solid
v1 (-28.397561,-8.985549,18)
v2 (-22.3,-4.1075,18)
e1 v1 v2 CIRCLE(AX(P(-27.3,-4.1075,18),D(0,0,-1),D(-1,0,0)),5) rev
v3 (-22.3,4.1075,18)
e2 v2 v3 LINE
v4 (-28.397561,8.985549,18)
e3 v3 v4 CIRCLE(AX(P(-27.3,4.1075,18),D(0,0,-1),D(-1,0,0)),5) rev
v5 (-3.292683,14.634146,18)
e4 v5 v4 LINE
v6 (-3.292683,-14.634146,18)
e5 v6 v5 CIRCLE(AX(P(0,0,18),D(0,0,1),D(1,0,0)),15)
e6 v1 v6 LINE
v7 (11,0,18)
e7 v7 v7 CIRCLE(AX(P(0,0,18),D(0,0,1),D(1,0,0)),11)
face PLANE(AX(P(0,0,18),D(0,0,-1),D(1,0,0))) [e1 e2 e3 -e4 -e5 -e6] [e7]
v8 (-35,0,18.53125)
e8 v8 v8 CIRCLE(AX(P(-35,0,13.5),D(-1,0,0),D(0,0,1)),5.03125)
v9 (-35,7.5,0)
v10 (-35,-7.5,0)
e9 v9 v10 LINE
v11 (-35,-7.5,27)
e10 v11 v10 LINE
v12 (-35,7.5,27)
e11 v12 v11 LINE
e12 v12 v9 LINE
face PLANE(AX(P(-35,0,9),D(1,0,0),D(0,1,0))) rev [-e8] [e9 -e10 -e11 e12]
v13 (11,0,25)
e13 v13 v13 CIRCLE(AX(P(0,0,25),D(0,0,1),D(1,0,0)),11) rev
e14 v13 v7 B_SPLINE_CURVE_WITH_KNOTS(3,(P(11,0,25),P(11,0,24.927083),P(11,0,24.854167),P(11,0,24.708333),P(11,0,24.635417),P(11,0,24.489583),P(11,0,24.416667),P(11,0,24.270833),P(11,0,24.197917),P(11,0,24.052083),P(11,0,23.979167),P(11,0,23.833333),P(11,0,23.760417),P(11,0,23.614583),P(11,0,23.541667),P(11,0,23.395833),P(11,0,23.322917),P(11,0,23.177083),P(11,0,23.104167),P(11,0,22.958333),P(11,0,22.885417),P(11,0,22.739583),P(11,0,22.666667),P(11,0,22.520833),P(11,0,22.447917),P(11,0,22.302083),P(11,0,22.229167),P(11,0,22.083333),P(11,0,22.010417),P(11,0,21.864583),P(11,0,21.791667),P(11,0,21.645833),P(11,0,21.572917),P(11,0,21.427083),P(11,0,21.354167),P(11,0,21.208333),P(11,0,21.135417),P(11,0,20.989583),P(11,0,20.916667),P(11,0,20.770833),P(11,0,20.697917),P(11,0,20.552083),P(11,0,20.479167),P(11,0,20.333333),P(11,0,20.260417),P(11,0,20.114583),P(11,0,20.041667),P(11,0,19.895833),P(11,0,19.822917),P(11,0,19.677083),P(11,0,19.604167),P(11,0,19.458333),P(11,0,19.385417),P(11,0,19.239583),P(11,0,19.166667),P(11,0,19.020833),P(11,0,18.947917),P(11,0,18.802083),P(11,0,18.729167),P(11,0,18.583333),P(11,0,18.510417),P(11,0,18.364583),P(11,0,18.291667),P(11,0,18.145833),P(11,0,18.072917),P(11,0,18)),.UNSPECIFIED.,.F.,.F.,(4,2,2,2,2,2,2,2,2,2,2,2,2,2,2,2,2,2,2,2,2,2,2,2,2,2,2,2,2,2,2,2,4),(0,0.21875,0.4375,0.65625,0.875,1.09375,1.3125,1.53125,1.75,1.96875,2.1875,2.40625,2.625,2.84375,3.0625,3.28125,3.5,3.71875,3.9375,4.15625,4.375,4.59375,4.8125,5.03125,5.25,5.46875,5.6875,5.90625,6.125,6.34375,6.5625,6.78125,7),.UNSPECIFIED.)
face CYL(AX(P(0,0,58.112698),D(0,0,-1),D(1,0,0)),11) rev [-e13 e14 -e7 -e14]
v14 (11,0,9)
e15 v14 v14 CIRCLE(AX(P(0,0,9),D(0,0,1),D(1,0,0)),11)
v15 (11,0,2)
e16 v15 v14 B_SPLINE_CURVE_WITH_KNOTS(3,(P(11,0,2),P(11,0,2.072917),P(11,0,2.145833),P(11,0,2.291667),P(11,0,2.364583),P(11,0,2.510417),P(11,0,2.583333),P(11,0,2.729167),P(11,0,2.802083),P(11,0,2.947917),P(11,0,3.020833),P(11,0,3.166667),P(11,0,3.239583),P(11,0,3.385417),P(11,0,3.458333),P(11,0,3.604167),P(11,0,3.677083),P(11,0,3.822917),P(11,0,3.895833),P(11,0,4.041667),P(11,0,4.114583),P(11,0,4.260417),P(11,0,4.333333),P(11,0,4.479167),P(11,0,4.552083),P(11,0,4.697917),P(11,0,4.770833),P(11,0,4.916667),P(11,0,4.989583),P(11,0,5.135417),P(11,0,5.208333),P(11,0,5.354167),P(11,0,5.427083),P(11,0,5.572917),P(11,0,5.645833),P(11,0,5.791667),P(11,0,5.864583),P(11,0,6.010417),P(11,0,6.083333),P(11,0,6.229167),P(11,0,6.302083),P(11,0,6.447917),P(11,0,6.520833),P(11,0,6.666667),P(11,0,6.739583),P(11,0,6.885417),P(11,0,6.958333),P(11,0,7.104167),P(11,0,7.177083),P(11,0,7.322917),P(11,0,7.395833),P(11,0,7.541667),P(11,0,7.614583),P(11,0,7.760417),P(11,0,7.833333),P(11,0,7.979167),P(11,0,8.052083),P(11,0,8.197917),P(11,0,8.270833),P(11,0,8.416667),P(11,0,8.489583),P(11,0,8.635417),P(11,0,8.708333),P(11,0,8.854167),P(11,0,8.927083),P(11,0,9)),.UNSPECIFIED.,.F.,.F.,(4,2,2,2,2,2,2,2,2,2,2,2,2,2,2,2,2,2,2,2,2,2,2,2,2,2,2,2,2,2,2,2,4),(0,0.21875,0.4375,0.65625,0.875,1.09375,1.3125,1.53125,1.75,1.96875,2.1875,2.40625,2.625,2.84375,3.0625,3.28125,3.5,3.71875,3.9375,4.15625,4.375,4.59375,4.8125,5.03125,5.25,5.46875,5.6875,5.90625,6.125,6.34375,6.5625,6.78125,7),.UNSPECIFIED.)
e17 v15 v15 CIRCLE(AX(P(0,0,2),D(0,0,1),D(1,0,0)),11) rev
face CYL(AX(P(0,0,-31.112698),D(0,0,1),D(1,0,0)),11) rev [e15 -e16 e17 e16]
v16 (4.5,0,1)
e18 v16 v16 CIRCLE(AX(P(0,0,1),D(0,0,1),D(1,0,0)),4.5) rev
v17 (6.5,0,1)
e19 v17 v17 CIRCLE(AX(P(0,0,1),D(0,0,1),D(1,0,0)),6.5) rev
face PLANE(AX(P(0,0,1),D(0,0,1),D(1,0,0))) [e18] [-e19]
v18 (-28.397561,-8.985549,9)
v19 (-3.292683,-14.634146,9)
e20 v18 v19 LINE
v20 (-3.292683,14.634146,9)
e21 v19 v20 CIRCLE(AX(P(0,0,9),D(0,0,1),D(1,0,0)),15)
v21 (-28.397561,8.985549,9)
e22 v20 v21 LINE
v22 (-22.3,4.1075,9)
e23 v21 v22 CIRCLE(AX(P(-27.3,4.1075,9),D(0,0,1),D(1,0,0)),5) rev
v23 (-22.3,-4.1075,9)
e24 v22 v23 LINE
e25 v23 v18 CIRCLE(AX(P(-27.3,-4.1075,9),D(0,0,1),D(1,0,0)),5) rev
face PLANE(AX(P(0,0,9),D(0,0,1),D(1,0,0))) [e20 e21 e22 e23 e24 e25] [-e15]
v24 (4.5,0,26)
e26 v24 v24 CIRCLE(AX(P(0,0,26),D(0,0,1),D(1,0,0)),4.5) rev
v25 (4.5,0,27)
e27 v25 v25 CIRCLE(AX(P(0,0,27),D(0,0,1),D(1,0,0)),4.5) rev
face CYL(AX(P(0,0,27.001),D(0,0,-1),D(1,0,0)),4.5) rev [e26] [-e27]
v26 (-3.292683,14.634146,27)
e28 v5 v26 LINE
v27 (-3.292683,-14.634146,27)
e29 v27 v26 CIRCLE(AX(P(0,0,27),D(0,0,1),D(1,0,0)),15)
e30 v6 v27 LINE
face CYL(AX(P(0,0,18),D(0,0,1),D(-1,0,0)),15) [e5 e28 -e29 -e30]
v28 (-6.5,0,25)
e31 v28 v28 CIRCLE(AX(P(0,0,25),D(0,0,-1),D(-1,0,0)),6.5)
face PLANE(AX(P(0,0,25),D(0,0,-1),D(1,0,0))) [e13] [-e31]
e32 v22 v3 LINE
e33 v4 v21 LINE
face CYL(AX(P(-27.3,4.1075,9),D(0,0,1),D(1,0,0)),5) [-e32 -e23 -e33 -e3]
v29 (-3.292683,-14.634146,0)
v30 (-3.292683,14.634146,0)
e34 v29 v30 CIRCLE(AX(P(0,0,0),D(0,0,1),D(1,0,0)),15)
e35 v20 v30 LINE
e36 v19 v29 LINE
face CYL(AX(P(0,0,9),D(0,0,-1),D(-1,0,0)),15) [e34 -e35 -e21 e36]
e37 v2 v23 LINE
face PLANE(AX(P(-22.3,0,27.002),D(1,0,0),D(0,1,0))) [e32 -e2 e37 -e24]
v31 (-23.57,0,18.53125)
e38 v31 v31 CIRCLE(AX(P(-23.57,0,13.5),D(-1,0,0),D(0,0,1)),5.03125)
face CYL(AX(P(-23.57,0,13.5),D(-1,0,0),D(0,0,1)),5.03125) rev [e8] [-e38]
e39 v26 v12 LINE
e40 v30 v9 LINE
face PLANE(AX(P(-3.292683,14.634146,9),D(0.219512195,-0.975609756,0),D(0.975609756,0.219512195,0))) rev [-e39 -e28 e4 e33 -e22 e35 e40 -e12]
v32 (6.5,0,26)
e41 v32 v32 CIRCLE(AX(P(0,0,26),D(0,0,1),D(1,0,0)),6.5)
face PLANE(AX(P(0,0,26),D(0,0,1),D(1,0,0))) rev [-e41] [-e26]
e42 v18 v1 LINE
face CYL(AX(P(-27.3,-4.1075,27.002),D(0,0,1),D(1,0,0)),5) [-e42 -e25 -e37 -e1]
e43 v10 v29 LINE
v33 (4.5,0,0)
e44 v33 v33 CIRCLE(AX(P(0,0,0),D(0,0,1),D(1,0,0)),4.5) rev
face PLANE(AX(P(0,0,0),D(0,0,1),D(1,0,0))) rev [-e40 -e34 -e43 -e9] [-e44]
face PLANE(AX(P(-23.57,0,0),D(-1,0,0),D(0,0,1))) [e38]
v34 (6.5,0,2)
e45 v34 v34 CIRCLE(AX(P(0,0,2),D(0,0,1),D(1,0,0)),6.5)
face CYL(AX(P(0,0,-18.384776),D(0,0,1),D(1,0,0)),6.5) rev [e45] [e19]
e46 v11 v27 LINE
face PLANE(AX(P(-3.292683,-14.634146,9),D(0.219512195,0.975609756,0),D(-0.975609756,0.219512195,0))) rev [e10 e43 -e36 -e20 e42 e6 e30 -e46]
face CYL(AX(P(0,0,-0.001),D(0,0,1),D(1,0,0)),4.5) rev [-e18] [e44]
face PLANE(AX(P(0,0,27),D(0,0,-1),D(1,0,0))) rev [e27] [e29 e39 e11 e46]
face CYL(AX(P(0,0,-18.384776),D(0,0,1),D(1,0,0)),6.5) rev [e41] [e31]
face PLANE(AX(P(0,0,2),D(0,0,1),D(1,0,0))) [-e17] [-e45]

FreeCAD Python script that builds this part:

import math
import FreeCAD as App
import Part
import Sketcher

V = App.Vector


def edges_at(feature, points):
    """Names of the edges that pass closest to the given points."""
    edges = feature.Shape.Edges
    near = lambda p: min(range(len(edges)), key=lambda i: edges[i].distToShape(Part.Vertex(*p))[0])
    return sorted({f"Edge{near(p) + 1}" for p in points})


def add_polygon(sketch, points):
    """Adds a closed chain of lines whose ends are joined by coincident constraints."""
    first, n = sketch.GeometryCount, len(points)
    for a, b in zip(points, points[1:] + points[:1]):
        sketch.addGeometry(Part.LineSegment(App.Vector(*a, 0), App.Vector(*b, 0)), False)
    for i in range(n):
        sketch.addConstraint(Sketcher.Constraint("Coincident", first + i, 2, first + (i + 1) % n, 1))

doc = App.newDocument("Part")
body = doc.addObject("PartDesign::Body", "Body")

sketch1 = body.newObject("Sketcher::SketchObject", "Sketch")
sketch1.AttachmentSupport = (doc.getObject("XY_Plane"), [""])
sketch1.MapMode = "FlatFace"
sketch1.addGeometry(Part.LineSegment(V(-3, 15, 0), V(-35, 8, 0)), False)
sketch1.addGeometry(Part.LineSegment(V(-35, 8, 0), V(-35, -8, 0)), False)
sketch1.addGeometry(Part.LineSegment(V(-35, -8, 0), V(-3, -15, 0)), False)
sketch1.addGeometry(Part.ArcOfCircle(Part.Circle(V(0, 0, 0), V(0, 0, 1), 15), math.radians(-103), math.radians(103)), False)
sketch1.addConstraint(Sketcher.Constraint("Coincident", 0, 2, 1, 1))
sketch1.addConstraint(Sketcher.Constraint("Coincident", 1, 2, 2, 1))
sketch1.addConstraint(Sketcher.Constraint("Tangent", 2, 2, 3, 1))
sketch1.addConstraint(Sketcher.Constraint("Tangent", 3, 2, 0, 1))
sketch1.addConstraint(Sketcher.Constraint("Vertical", 1))
sketch1.addConstraint(Sketcher.Constraint("Coincident", 3, 3, -1, 1))
sketch1.addConstraint(Sketcher.Constraint("Vertical", 2, 2, 3, 2))
sketch1.addConstraint(Sketcher.Constraint("Radius", 3, 15.0))
sketch1.addConstraint(Sketcher.Constraint("DistanceY", 1, 2, 1, 1, 15.0))
sketch1.addConstraint(Sketcher.Constraint("DistanceX", 0, 2, -1, 1, 35.0))
pad1 = body.newObject("PartDesign::Pad", "Pad")
pad1.Profile = sketch1
pad1.Length = 9

sketch2 = body.newObject("Sketcher::SketchObject", "Sketch001")
sketch2.AttachmentSupport = (doc.getObject("XY_Plane"), [""])
sketch2.MapMode = "FlatFace"
sketch2.AttachmentOffset = App.Placement(V(0, 0, 9), App.Rotation())
sketch2.addGeometry(Part.Circle(V(0, 0, 0), V(0, 0, 1), 11), False)
sketch2.addConstraint(Sketcher.Constraint("Coincident", 0, 3, -1, 1))
sketch2.addConstraint(Sketcher.Constraint("Diameter", 0, 22.0))
pocket1 = body.newObject("PartDesign::Pocket", "Pocket")
pocket1.Profile = sketch2
pocket1.Length = 7

sketch3 = body.newObject("Sketcher::SketchObject", "Sketch002")
sketch3.AttachmentSupport = (doc.getObject("XY_Plane"), [""])
sketch3.MapMode = "FlatFace"
sketch3.AttachmentOffset = App.Placement(V(0, 0, 2), App.Rotation())
sketch3.addGeometry(Part.Circle(V(0, 0, 0), V(0, 0, 1), 4.5), False)
sketch3.addConstraint(Sketcher.Constraint("Coincident", 0, 3, -1, 1))
sketch3.addConstraint(Sketcher.Constraint("Diameter", 0, 9.0))
pocket2 = body.newObject("PartDesign::Pocket", "Pocket001")
pocket2.Profile = sketch3
pocket2.Type = "UpToFirst"
body2 = doc.addObject("PartDesign::Body", "Body001")
body2.AllowCompound = True
doc.recompute()

mirroring = doc.addObject("Part::Mirroring", "Mirroring")
mirroring.Source = body
mirroring.Base = V(0, 0, 13.5)
mirroring.Normal = V(0, 0, 1)
body2.BaseFeature = mirroring
doc.recompute()

boolean = body2.newObject("PartDesign::Boolean", "Boolean")
boolean.Type = "Fuse"
boolean.addObjects([body])

sketch4 = body2.newObject("Sketcher::SketchObject", "Sketch003")
sketch4.AttachmentSupport = (doc.getObject("XY_Plane001"), [""])
sketch4.MapMode = "FlatFace"
sketch4.AttachmentOffset = App.Placement(V(0, 0, 9), App.Rotation())
add_polygon(sketch4, [(-35, 8), (-35, -8), (-22, -10), (-22, 10)])
sketch4.addConstraint(Sketcher.Constraint("Vertical", 0))
sketch4.addConstraint(Sketcher.Constraint("Vertical", 2))
sketch4.addConstraint(Sketcher.Constraint("Equal", 1, 3))
sketch4.addConstraint(Sketcher.Constraint("DistanceY", 0, 2, 0, 1, 15.0))
sketch4.addConstraint(Sketcher.Constraint("DistanceX", 0, 2, -1, 1, 35.0))
sketch4.addConstraint(Sketcher.Constraint("DistanceY", 0, 2, -1, 1, 7.5))
sketch4.addConstraint(Sketcher.Constraint("DistanceX", 1, 2, -1, 1, 22.3))
sketch4.addConstraint(Sketcher.Constraint("DistanceY", 2, 1, 2, 2, 20.715))
pad2 = body2.newObject("PartDesign::Pad", "Pad001")
pad2.Profile = sketch4
pad2.Type = "UpToFirst"

sketch5 = body2.newObject("Sketcher::SketchObject", "Sketch004")
sketch5.AttachmentSupport = (doc.getObject("YZ_Plane001"), [""])
sketch5.MapMode = "FlatFace"
sketch5.AttachmentOffset = App.Placement(V(0, 0, -35), App.Rotation())
sketch5.addGeometry(Part.Circle(V(0, 14, 0), V(0, 0, 1), 5), False)
sketch5.addConstraint(Sketcher.Constraint("PointOnObject", 0, 3, -2))
sketch5.addConstraint(Sketcher.Constraint("Diameter", 0, 10.0625))
sketch5.addConstraint(Sketcher.Constraint("DistanceY", -1, 1, 0, 3, 13.5))
pocket3 = body2.newObject("PartDesign::Pocket", "Pocket002")
pocket3.Profile = sketch5
pocket3.Length = 11.43
pocket3.Reversed = True
doc.recompute()

fillet = body2.newObject("PartDesign::Fillet", "Fillet")
fillet.Base = (pocket3, edges_at(pocket3, [(-22.3, 10.357, 13.5), (-22.3, -10.357, 13.5)]))
fillet.Radius = 5

sketch6 = body2.newObject("Sketcher::SketchObject", "Sketch005")
sketch6.AttachmentSupport = (doc.getObject("XY_Plane001"), [""])
sketch6.MapMode = "FlatFace"
sketch6.AttachmentOffset = App.Placement(V(0, 0, 25), App.Rotation())
sketch6.addGeometry(Part.Circle(V(0, 0, 0), V(0, 0, 1), 6), False)
sketch6.addConstraint(Sketcher.Constraint("Coincident", 0, 3, -1, 1))
sketch6.addConstraint(Sketcher.Constraint("Diameter", 0, 13.0))
pocket4 = body2.newObject("PartDesign::Pocket", "Pocket003")
pocket4.Profile = sketch6
pocket4.Type = "TwoLengths"
pocket4.Length = 1
pocket4.Length2 = 24
pocket4.Reversed = True
mirroring.Visibility = False

doc.recompute()
